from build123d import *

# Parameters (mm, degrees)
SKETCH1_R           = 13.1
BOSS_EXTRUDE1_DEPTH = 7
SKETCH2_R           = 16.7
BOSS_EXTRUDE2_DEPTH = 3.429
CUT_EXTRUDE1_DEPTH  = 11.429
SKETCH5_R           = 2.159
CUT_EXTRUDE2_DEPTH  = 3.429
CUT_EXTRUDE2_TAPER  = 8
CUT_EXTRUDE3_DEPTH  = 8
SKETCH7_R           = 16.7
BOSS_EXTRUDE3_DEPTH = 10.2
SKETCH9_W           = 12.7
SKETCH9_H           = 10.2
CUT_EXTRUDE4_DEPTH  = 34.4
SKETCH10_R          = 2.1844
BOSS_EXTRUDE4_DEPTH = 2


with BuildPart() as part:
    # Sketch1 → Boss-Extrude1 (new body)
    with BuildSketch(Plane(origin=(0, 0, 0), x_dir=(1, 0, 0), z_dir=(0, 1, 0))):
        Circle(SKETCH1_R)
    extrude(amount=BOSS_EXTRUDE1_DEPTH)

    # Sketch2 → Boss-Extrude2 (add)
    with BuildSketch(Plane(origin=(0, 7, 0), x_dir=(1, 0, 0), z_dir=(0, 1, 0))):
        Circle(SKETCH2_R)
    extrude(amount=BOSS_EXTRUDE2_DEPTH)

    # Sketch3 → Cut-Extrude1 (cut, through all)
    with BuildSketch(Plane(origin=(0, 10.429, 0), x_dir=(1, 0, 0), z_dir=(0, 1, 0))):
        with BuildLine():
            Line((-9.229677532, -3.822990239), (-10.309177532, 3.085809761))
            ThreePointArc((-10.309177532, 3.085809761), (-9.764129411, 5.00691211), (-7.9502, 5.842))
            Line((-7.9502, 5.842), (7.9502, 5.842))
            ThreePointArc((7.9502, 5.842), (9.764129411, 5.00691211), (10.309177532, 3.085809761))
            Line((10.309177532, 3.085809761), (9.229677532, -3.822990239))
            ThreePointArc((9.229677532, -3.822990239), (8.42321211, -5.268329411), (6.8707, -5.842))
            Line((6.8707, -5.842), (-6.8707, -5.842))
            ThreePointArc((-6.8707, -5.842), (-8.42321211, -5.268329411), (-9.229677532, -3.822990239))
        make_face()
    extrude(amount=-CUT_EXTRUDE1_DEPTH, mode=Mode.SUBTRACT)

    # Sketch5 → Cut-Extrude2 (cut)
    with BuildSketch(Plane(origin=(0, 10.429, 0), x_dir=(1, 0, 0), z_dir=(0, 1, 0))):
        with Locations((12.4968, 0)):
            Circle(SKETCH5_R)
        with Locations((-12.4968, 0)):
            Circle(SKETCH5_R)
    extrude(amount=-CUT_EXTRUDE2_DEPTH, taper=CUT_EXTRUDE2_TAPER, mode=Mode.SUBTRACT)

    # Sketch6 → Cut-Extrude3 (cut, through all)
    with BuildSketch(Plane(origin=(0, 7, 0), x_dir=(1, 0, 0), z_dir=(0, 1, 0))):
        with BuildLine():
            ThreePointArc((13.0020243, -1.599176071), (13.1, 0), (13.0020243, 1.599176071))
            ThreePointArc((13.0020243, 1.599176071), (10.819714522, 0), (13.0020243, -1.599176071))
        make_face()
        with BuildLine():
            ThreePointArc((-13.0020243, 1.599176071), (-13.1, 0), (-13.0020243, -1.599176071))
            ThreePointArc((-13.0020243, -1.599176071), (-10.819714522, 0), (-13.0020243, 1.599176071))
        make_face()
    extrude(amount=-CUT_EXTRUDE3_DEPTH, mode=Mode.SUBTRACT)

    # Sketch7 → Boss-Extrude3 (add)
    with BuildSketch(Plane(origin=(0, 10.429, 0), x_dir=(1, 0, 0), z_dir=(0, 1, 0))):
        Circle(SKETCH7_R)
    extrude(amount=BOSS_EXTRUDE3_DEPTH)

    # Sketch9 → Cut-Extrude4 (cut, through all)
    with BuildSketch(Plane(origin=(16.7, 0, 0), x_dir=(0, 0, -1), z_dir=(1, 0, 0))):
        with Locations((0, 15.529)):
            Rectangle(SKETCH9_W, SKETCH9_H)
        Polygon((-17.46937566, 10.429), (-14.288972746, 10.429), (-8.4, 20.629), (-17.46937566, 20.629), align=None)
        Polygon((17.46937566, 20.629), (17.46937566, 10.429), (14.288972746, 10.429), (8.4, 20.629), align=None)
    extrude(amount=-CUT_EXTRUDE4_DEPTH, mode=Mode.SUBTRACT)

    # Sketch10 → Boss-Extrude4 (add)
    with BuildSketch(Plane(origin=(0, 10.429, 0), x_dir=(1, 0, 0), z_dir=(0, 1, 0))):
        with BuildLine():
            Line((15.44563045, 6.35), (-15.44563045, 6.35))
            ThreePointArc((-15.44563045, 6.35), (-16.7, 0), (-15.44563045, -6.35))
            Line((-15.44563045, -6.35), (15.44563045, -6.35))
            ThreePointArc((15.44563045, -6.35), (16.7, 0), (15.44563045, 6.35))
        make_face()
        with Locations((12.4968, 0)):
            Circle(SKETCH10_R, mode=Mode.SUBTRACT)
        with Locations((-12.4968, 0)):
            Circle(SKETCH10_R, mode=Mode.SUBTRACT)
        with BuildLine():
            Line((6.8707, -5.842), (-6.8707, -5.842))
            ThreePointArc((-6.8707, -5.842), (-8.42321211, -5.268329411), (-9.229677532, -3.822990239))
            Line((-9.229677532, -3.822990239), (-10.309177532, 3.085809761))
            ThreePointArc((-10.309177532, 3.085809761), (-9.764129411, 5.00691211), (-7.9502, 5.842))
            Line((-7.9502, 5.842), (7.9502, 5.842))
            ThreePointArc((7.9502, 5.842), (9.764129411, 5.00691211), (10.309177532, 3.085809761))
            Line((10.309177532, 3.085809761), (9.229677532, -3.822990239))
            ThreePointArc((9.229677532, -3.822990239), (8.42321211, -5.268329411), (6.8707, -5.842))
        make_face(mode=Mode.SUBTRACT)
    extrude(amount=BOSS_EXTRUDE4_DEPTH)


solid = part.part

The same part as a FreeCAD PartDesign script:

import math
import FreeCAD as App
import Part
import Sketcher

V = App.Vector
Q = App.Units.Quantity

doc = App.newDocument("Part")
body = doc.addObject("PartDesign::Body", "Body")

# Sketch on XZ plane
sketch1 = body.newObject("Sketcher::SketchObject", "Sketch")
sketch1.AttachmentSupport = (doc.getObject("XZ_Plane"), [""])
sketch1.MapMode = "FlatFace"
sketch1.addGeometry(Part.Circle(V(0, 0, 0), V(0, 0, 1), 13), False)
sketch1.addConstraint([
    Sketcher.Constraint("Coincident", 0, 3, -1, 1),
    Sketcher.Constraint("Diameter", 0, 26.2),
])
pad1 = body.newObject("PartDesign::Pad", "Pad")
pad1.Profile = sketch1
pad1.Length = 7
pad1.Reversed = True

# Sketch on XZ plane
sketch2 = body.newObject("Sketcher::SketchObject", "Sketch001")
sketch2.AttachmentSupport = (doc.getObject("XZ_Plane"), [""])
sketch2.MapMode = "FlatFace"
sketch2.AttachmentOffset = App.Placement(V(0, 0, -7), App.Rotation())
sketch2.addGeometry(Part.Circle(V(0, 0, 0), V(0, 0, 1), 17), False)
sketch2.addConstraint([
    Sketcher.Constraint("Coincident", 0, 3, -1, 1),
    Sketcher.Constraint("Diameter", 0, 33.4),
])
pad2 = body.newObject("PartDesign::Pad", "Pad001")
pad2.Profile = sketch2
pad2.Length = 3.429
pad2.Reversed = True

# Sketch on XZ plane
sketch3 = body.newObject("Sketcher::SketchObject", "Sketch002")
sketch3.AttachmentSupport = (doc.getObject("XZ_Plane"), [""])
sketch3.MapMode = "FlatFace"
sketch3.AttachmentOffset = App.Placement(V(0, 0, -10.429), App.Rotation())
sketch3.addGeometry([
    Part.LineSegment(V(-10.3, -3.1, 0), V(-9.2, 3.8, 0)),  # 0
    Part.ArcOfCircle(Part.Circle(V(-6.9, 3.5, 0), V(0, 0, 1), 2.4), math.radians(90), math.radians(171)),  # 1
    Part.LineSegment(V(-6.9, 5.8, 0), V(6.9, 5.8, 0)),  # 2
    Part.ArcOfCircle(Part.Circle(V(6.9, 3.5, 0), V(0, 0, 1), 2.4), math.radians(9), math.radians(90)),  # 3
    Part.LineSegment(V(9.2, 3.8, 0), V(10.3, -3.1, 0)),  # 4
    Part.ArcOfCircle(Part.Circle(V(8, -3.5, 0), V(0, 0, 1), 2.4), math.radians(-90), math.radians(9)),  # 5
    Part.LineSegment(V(8, -5.8, 0), V(-8, -5.8, 0)),  # 6
    Part.ArcOfCircle(Part.Circle(V(-8, -3.5, 0), V(0, 0, 1), 2.4), math.radians(171), math.radians(270)),  # 7
], False)
sketch3.addConstraint([
    Sketcher.Constraint("Tangent", 0, 2, 1, 2),
    Sketcher.Constraint("Tangent", 1, 1, 2, 1),
    Sketcher.Constraint("Tangent", 2, 2, 3, 2),
    Sketcher.Constraint("Tangent", 3, 1, 4, 1),
    Sketcher.Constraint("Tangent", 4, 2, 5, 2),
    Sketcher.Constraint("Tangent", 5, 1, 6, 1),
    Sketcher.Constraint("Tangent", 6, 2, 7, 2),
    Sketcher.Constraint("Tangent", 7, 1, 0, 1),
    Sketcher.Constraint("Horizontal", 2),
    Sketcher.Constraint("Horizontal", 6),
    Sketcher.Constraint("Equal", 1, 3),
    Sketcher.Constraint("Equal", 3, 5),
    Sketcher.Constraint("Equal", 5, 7),
    Sketcher.Constraint("Symmetric", 0, 2, 3, 1, -2),
    Sketcher.Constraint("Radius", 1, 2.3876),
    Sketcher.Constraint("DistanceX", 2, 1, 2, 2, 13.7414),
    Sketcher.Constraint("DistanceX", 6, 2, 6, 1, 15.9004),
    Sketcher.Constraint("DistanceY", -1, 1, 1, 1, 5.842),
    Sketcher.Constraint("DistanceY", 5, 1, -1, 1, 5.842),
])
pocket1 = body.newObject("PartDesign::Pocket", "Pocket")
pocket1.Profile = sketch3
pocket1.Type = "ThroughAll"
pocket1.Reversed = True

# Sketch on XZ plane
sketch4 = body.newObject("Sketcher::SketchObject", "Sketch003")
sketch4.AttachmentSupport = (doc.getObject("XZ_Plane"), [""])
sketch4.MapMode = "FlatFace"
sketch4.AttachmentOffset = App.Placement(V(0, 0, -10.429), App.Rotation())
sketch4.addGeometry([
    Part.Circle(V(12.5, 0, 0), V(0, 0, 1), 2.2),
    Part.Circle(V(-12.5, 0, 0), V(0, 0, 1), 2.2),
], False)
sketch4.addConstraint([
    Sketcher.Constraint("Equal", 0, 1),
    Sketcher.Constraint("Symmetric", 0, 3, 1, 3, -1, 1),
    Sketcher.Constraint("PointOnObject", 0, 3, -1),
    Sketcher.Constraint("Diameter", 0, 4.318),
    Sketcher.Constraint("DistanceX", -1, 1, 0, 3, 12.4968),
])
pocket2 = body.newObject("PartDesign::Pocket", "Pocket001")
pocket2.Profile = sketch4
pocket2.Length = 3.429
pocket2.Reversed = True
pocket2.TaperAngle = -8

# Sketch on XZ plane
sketch5 = body.newObject("Sketcher::SketchObject", "Sketch004")
sketch5.AttachmentSupport = (doc.getObject("XZ_Plane"), [""])
sketch5.MapMode = "FlatFace"
sketch5.AttachmentOffset = App.Placement(V(0, 0, -7), App.Rotation())
sketch5.addGeometry([
    Part.ArcOfCircle(Part.Circle(V(0, 0, 0), V(0, 0, 1), 13.1), math.radians(-7.01), math.radians(7.01)),
    Part.ArcOfCircle(Part.Circle(V(12.5, 0, 0), V(0, 0, 1), 1.7), math.radians(72), math.radians(288)),
    Part.ArcOfCircle(Part.Circle(V(0, 0, 0), V(0, 0, 1), 13.1), math.radians(172.99), math.radians(187.01)),
    Part.ArcOfCircle(Part.Circle(V(-12.5, 0, 0), V(0, 0, 1), 1.7), math.radians(-108), math.radians(108)),
], False)
sketch5.addConstraint([
    Sketcher.Constraint("Coincident", 0, 1, 1, 2),
    Sketcher.Constraint("Coincident", 1, 1, 0, 2),
    Sketcher.Constraint("Coincident", 2, 1, 3, 2),
    Sketcher.Constraint("Coincident", 3, 1, 2, 2),
    Sketcher.Constraint("Coincident", 0, 3, -1, 1),
    Sketcher.Constraint("Coincident", 2, 3, -1, 1),
    Sketcher.Constraint("Equal", 0, 2),
    Sketcher.Constraint("Equal", 1, 3),
    Sketcher.Constraint("Symmetric", 1, 3, 3, 3, -1, 1),
    Sketcher.Constraint("PointOnObject", 1, 3, -1),
    Sketcher.Constraint("Radius", 0, 13.1),
    Sketcher.Constraint("Radius", 1, 1.677085),
    Sketcher.Constraint("DistanceX", -1, 1, 1, 3, 12.4968),
])
pocket3 = body.newObject("PartDesign::Pocket", "Pocket002")
pocket3.Profile = sketch5
pocket3.Type = "ThroughAll"
pocket3.Reversed = True

# Sketch on XZ plane
sketch6 = body.newObject("Sketcher::SketchObject", "Sketch005")
sketch6.AttachmentSupport = (doc.getObject("XZ_Plane"), [""])
sketch6.MapMode = "FlatFace"
sketch6.AttachmentOffset = App.Placement(V(0, 0, -10.429), App.Rotation())
sketch6.addGeometry(Part.Circle(V(0, 0, 0), V(0, 0, 1), 17), False)
sketch6.addConstraint([
    Sketcher.Constraint("Coincident", 0, 3, -1, 1),
    Sketcher.Constraint("Diameter", 0, 33.4),
])
pad3 = body.newObject("PartDesign::Pad", "Pad002")
pad3.Profile = sketch6
pad3.Length = 10.2
pad3.Reversed = True

# Sketch on YZ plane
sketch7 = body.newObject("Sketcher::SketchObject", "Sketch006")
sketch7.AttachmentSupport = (doc.getObject("YZ_Plane"), [""])
sketch7.MapMode = "FlatFace"
sketch7.AttachmentOffset = App.Placement(V(0, 0, 16.7), App.Rotation())
sketch7.addGeometry([
    Part.LineSegment(V(20.6, 6.3, 0), V(10.4, 6.3, 0)),  # 0
    Part.LineSegment(V(10.4, 6.3, 0), V(10.4, -6.3, 0)),  # 1
    Part.LineSegment(V(10.4, -6.3, 0), V(20.6, -6.3, 0)),  # 2
    Part.LineSegment(V(20.6, -6.3, 0), V(20.6, 6.3, 0)),  # 3
    Part.LineSegment(V(10.4, 17.5, 0), V(10.4, 14.3, 0)),  # 4
    Part.LineSegment(V(10.4, 14.3, 0), V(20.6, 8.4, 0)),  # 5
    Part.LineSegment(V(20.6, 8.4, 0), V(20.6, 17.5, 0)),  # 6
    Part.LineSegment(V(20.6, 17.5, 0), V(10.4, 17.5, 0)),  # 7
    Part.LineSegment(V(10.4, -17.5, 0), V(20.6, -17.5, 0)),  # 8
    Part.LineSegment(V(20.6, -17.5, 0), V(20.6, -8.4, 0)),  # 9
    Part.LineSegment(V(20.6, -8.4, 0), V(10.4, -14.3, 0)),  # 10
    Part.LineSegment(V(10.4, -14.3, 0), V(10.4, -17.5, 0)),  # 11
], False)
sketch7.addConstraint([
    Sketcher.Constraint("Coincident", 0, 2, 1, 1),
    Sketcher.Constraint("Coincident", 1, 2, 2, 1),
    Sketcher.Constraint("Coincident", 2, 2, 3, 1),
    Sketcher.Constraint("Coincident", 3, 2, 0, 1),
    Sketcher.Constraint("Coincident", 4, 2, 5, 1),
    Sketcher.Constraint("Coincident", 5, 2, 6, 1),
    Sketcher.Constraint("Coincident", 6, 2, 7, 1),
    Sketcher.Constraint("Coincident", 7, 2, 4, 1),
    Sketcher.Constraint("Coincident", 8, 2, 9, 1),
    Sketcher.Constraint("Coincident", 9, 2, 10, 1),
    Sketcher.Constraint("Coincident", 10, 2, 11, 1),
    Sketcher.Constraint("Coincident", 11, 2, 8, 1),
    Sketcher.Constraint("Horizontal", 0),
    Sketcher.Constraint("Vertical", 1),
    Sketcher.Constraint("Horizontal", 2),
    Sketcher.Constraint("Vertical", 3),
    Sketcher.Constraint("Vertical", 4),
    Sketcher.Constraint("Vertical", 6),
    Sketcher.Constraint("Horizontal", 7),
    Sketcher.Constraint("Horizontal", 8),
    Sketcher.Constraint("Vertical", 9),
    Sketcher.Constraint("Vertical", 11),
    Sketcher.Constraint("Symmetric", 6, 2, 8, 2, -1),
    Sketcher.Constraint("Symmetric", 4, 2, 10, 2, -1),
    Sketcher.Constraint("Vertical", 1, 2, 4, 2),
    Sketcher.Constraint("Vertical", 3, 2, 5, 2),
    Sketcher.Constraint("Equal", 6, 9),
    Sketcher.Constraint("Angle", 5, Q("-30 deg")),
    Sketcher.Constraint("DistanceX", 0, 2, 0, 1, 10.2),
    Sketcher.Constraint("DistanceY", 1, 2, 1, 1, 12.7),
    Sketcher.Constraint("DistanceY", -1, 1, 5, 2, 8.4),
    Sketcher.Constraint("DistanceY", -1, 1, 0, 2, 6.35),
    Sketcher.Constraint("DistanceX", -1, 1, 0, 2, 10.429),
    Sketcher.Constraint("DistanceY", 4, 2, 4, 1, 3.180403),
])
pocket4 = body.newObject("PartDesign::Pocket", "Pocket003")
pocket4.Profile = sketch7
pocket4.Type = "ThroughAll"

# Sketch on XZ plane
sketch8 = body.newObject("Sketcher::SketchObject", "Sketch007")
sketch8.AttachmentSupport = (doc.getObject("XZ_Plane"), [""])
sketch8.MapMode = "FlatFace"
sketch8.AttachmentOffset = App.Placement(V(0, 0, -10.429), App.Rotation())
sketch8.addGeometry([
    Part.LineSegment(V(15.4, -6.3, 0), V(-15.4, -6.3, 0)),  # 0
    Part.ArcOfCircle(Part.Circle(V(0, 0, 0), V(0, 0, 1), 16.7), math.radians(158), math.radians(202)),  # 1
    Part.LineSegment(V(-15.4, 6.3, 0), V(15.4, 6.3, 0)),  # 2
    Part.ArcOfCircle(Part.Circle(V(0, 0, 0), V(0, 0, 1), 16.7), math.radians(-22), math.radians(22)),  # 3
    Part.Circle(V(-12.5, 0, 0), V(0, 0, 1), 2.2),  # 4
    Part.ArcOfCircle(Part.Circle(V(6.9, 3.5, 0), V(0, 0, 1), 2.4), math.radians(9), math.radians(90)),  # 5
    Part.LineSegment(V(6.9, 5.8, 0), V(-6.9, 5.8, 0)),  # 6
    Part.ArcOfCircle(Part.Circle(V(-6.9, 3.5, 0), V(0, 0, 1), 2.4), math.radians(90), math.radians(171)),  # 7
    Part.LineSegment(V(-9.2, 3.8, 0), V(-10.3, -3.1, 0)),  # 8
    Part.ArcOfCircle(Part.Circle(V(-8, -3.5, 0), V(0, 0, 1), 2.4), math.radians(171), math.radians(270)),  # 9
    Part.LineSegment(V(-8, -5.8, 0), V(8, -5.8, 0)),  # 10
    Part.ArcOfCircle(Part.Circle(V(8, -3.5, 0), V(0, 0, 1), 2.4), math.radians(-90), math.radians(9)),  # 11
    Part.LineSegment(V(10.3, -3.1, 0), V(9.2, 3.8, 0)),  # 12
    Part.Circle(V(12.5, 0, 0), V(0, 0, 1), 2.2),  # 13
], False)
sketch8.addConstraint([
    Sketcher.Constraint("Coincident", 0, 2, 1, 2),
    Sketcher.Constraint("Coincident", 1, 1, 2, 1),
    Sketcher.Constraint("Coincident", 2, 2, 3, 2),
    Sketcher.Constraint("Coincident", 3, 1, 0, 1),
    Sketcher.Constraint("Tangent", 5, 2, 6, 1),
    Sketcher.Constraint("Tangent", 6, 2, 7, 1),
    Sketcher.Constraint("Tangent", 7, 2, 8, 1),
    Sketcher.Constraint("Tangent", 8, 2, 9, 1),
    Sketcher.Constraint("Tangent", 9, 2, 10, 1),
    Sketcher.Constraint("Tangent", 10, 2, 11, 1),
    Sketcher.Constraint("Tangent", 11, 2, 12, 1),
    Sketcher.Constraint("Tangent", 12, 2, 5, 1),
    Sketcher.Constraint("Horizontal", 0),
    Sketcher.Constraint("Horizontal", 2),
    Sketcher.Constraint("Horizontal", 6),
    Sketcher.Constraint("Horizontal", 10),
    Sketcher.Constraint("Coincident", 1, 3, -1, 1),
    Sketcher.Constraint("Coincident", 3, 3, -1, 1),
    Sketcher.Constraint("Equal", 1, 3),
    Sketcher.Constraint("Equal", 5, 7),
    Sketcher.Constraint("Equal", 7, 9),
    Sketcher.Constraint("Equal", 9, 11),
    Sketcher.Constraint("Equal", 4, 13),
    Sketcher.Constraint("Symmetric", 4, 3, 13, 3, -1, 1),
    Sketcher.Constraint("Symmetric", 8, 2, 11, 2, -2),
    Sketcher.Constraint("PointOnObject", 4, 3, -1),
    Sketcher.Constraint("Vertical", 0, 2, 1, 1),
    Sketcher.Constraint("Radius", 1, 16.7),
    Sketcher.Constraint("Diameter", 4, 4.3688),
    Sketcher.Constraint("Radius", 5, 2.3876),
    Sketcher.Constraint("DistanceY", 0, 2, 1, 1, 12.7),
    Sketcher.Constraint("DistanceX", 6, 2, 6, 1, 13.7414),
    Sketcher.Constraint("DistanceX", 10, 1, 10, 2, 15.9004),
    Sketcher.Constraint("DistanceY", -1, 1, 5, 2, 5.842),
    Sketcher.Constraint("DistanceY", 9, 2, -1, 1, 5.842),
    Sketcher.Constraint("DistanceX", 4, 3, -1, 1, 12.4968),
])
pad4 = body.newObject("PartDesign::Pad", "Pad003")
pad4.Profile = sketch8
pad4.Length = 2
pad4.Reversed = True

doc.recompute()
